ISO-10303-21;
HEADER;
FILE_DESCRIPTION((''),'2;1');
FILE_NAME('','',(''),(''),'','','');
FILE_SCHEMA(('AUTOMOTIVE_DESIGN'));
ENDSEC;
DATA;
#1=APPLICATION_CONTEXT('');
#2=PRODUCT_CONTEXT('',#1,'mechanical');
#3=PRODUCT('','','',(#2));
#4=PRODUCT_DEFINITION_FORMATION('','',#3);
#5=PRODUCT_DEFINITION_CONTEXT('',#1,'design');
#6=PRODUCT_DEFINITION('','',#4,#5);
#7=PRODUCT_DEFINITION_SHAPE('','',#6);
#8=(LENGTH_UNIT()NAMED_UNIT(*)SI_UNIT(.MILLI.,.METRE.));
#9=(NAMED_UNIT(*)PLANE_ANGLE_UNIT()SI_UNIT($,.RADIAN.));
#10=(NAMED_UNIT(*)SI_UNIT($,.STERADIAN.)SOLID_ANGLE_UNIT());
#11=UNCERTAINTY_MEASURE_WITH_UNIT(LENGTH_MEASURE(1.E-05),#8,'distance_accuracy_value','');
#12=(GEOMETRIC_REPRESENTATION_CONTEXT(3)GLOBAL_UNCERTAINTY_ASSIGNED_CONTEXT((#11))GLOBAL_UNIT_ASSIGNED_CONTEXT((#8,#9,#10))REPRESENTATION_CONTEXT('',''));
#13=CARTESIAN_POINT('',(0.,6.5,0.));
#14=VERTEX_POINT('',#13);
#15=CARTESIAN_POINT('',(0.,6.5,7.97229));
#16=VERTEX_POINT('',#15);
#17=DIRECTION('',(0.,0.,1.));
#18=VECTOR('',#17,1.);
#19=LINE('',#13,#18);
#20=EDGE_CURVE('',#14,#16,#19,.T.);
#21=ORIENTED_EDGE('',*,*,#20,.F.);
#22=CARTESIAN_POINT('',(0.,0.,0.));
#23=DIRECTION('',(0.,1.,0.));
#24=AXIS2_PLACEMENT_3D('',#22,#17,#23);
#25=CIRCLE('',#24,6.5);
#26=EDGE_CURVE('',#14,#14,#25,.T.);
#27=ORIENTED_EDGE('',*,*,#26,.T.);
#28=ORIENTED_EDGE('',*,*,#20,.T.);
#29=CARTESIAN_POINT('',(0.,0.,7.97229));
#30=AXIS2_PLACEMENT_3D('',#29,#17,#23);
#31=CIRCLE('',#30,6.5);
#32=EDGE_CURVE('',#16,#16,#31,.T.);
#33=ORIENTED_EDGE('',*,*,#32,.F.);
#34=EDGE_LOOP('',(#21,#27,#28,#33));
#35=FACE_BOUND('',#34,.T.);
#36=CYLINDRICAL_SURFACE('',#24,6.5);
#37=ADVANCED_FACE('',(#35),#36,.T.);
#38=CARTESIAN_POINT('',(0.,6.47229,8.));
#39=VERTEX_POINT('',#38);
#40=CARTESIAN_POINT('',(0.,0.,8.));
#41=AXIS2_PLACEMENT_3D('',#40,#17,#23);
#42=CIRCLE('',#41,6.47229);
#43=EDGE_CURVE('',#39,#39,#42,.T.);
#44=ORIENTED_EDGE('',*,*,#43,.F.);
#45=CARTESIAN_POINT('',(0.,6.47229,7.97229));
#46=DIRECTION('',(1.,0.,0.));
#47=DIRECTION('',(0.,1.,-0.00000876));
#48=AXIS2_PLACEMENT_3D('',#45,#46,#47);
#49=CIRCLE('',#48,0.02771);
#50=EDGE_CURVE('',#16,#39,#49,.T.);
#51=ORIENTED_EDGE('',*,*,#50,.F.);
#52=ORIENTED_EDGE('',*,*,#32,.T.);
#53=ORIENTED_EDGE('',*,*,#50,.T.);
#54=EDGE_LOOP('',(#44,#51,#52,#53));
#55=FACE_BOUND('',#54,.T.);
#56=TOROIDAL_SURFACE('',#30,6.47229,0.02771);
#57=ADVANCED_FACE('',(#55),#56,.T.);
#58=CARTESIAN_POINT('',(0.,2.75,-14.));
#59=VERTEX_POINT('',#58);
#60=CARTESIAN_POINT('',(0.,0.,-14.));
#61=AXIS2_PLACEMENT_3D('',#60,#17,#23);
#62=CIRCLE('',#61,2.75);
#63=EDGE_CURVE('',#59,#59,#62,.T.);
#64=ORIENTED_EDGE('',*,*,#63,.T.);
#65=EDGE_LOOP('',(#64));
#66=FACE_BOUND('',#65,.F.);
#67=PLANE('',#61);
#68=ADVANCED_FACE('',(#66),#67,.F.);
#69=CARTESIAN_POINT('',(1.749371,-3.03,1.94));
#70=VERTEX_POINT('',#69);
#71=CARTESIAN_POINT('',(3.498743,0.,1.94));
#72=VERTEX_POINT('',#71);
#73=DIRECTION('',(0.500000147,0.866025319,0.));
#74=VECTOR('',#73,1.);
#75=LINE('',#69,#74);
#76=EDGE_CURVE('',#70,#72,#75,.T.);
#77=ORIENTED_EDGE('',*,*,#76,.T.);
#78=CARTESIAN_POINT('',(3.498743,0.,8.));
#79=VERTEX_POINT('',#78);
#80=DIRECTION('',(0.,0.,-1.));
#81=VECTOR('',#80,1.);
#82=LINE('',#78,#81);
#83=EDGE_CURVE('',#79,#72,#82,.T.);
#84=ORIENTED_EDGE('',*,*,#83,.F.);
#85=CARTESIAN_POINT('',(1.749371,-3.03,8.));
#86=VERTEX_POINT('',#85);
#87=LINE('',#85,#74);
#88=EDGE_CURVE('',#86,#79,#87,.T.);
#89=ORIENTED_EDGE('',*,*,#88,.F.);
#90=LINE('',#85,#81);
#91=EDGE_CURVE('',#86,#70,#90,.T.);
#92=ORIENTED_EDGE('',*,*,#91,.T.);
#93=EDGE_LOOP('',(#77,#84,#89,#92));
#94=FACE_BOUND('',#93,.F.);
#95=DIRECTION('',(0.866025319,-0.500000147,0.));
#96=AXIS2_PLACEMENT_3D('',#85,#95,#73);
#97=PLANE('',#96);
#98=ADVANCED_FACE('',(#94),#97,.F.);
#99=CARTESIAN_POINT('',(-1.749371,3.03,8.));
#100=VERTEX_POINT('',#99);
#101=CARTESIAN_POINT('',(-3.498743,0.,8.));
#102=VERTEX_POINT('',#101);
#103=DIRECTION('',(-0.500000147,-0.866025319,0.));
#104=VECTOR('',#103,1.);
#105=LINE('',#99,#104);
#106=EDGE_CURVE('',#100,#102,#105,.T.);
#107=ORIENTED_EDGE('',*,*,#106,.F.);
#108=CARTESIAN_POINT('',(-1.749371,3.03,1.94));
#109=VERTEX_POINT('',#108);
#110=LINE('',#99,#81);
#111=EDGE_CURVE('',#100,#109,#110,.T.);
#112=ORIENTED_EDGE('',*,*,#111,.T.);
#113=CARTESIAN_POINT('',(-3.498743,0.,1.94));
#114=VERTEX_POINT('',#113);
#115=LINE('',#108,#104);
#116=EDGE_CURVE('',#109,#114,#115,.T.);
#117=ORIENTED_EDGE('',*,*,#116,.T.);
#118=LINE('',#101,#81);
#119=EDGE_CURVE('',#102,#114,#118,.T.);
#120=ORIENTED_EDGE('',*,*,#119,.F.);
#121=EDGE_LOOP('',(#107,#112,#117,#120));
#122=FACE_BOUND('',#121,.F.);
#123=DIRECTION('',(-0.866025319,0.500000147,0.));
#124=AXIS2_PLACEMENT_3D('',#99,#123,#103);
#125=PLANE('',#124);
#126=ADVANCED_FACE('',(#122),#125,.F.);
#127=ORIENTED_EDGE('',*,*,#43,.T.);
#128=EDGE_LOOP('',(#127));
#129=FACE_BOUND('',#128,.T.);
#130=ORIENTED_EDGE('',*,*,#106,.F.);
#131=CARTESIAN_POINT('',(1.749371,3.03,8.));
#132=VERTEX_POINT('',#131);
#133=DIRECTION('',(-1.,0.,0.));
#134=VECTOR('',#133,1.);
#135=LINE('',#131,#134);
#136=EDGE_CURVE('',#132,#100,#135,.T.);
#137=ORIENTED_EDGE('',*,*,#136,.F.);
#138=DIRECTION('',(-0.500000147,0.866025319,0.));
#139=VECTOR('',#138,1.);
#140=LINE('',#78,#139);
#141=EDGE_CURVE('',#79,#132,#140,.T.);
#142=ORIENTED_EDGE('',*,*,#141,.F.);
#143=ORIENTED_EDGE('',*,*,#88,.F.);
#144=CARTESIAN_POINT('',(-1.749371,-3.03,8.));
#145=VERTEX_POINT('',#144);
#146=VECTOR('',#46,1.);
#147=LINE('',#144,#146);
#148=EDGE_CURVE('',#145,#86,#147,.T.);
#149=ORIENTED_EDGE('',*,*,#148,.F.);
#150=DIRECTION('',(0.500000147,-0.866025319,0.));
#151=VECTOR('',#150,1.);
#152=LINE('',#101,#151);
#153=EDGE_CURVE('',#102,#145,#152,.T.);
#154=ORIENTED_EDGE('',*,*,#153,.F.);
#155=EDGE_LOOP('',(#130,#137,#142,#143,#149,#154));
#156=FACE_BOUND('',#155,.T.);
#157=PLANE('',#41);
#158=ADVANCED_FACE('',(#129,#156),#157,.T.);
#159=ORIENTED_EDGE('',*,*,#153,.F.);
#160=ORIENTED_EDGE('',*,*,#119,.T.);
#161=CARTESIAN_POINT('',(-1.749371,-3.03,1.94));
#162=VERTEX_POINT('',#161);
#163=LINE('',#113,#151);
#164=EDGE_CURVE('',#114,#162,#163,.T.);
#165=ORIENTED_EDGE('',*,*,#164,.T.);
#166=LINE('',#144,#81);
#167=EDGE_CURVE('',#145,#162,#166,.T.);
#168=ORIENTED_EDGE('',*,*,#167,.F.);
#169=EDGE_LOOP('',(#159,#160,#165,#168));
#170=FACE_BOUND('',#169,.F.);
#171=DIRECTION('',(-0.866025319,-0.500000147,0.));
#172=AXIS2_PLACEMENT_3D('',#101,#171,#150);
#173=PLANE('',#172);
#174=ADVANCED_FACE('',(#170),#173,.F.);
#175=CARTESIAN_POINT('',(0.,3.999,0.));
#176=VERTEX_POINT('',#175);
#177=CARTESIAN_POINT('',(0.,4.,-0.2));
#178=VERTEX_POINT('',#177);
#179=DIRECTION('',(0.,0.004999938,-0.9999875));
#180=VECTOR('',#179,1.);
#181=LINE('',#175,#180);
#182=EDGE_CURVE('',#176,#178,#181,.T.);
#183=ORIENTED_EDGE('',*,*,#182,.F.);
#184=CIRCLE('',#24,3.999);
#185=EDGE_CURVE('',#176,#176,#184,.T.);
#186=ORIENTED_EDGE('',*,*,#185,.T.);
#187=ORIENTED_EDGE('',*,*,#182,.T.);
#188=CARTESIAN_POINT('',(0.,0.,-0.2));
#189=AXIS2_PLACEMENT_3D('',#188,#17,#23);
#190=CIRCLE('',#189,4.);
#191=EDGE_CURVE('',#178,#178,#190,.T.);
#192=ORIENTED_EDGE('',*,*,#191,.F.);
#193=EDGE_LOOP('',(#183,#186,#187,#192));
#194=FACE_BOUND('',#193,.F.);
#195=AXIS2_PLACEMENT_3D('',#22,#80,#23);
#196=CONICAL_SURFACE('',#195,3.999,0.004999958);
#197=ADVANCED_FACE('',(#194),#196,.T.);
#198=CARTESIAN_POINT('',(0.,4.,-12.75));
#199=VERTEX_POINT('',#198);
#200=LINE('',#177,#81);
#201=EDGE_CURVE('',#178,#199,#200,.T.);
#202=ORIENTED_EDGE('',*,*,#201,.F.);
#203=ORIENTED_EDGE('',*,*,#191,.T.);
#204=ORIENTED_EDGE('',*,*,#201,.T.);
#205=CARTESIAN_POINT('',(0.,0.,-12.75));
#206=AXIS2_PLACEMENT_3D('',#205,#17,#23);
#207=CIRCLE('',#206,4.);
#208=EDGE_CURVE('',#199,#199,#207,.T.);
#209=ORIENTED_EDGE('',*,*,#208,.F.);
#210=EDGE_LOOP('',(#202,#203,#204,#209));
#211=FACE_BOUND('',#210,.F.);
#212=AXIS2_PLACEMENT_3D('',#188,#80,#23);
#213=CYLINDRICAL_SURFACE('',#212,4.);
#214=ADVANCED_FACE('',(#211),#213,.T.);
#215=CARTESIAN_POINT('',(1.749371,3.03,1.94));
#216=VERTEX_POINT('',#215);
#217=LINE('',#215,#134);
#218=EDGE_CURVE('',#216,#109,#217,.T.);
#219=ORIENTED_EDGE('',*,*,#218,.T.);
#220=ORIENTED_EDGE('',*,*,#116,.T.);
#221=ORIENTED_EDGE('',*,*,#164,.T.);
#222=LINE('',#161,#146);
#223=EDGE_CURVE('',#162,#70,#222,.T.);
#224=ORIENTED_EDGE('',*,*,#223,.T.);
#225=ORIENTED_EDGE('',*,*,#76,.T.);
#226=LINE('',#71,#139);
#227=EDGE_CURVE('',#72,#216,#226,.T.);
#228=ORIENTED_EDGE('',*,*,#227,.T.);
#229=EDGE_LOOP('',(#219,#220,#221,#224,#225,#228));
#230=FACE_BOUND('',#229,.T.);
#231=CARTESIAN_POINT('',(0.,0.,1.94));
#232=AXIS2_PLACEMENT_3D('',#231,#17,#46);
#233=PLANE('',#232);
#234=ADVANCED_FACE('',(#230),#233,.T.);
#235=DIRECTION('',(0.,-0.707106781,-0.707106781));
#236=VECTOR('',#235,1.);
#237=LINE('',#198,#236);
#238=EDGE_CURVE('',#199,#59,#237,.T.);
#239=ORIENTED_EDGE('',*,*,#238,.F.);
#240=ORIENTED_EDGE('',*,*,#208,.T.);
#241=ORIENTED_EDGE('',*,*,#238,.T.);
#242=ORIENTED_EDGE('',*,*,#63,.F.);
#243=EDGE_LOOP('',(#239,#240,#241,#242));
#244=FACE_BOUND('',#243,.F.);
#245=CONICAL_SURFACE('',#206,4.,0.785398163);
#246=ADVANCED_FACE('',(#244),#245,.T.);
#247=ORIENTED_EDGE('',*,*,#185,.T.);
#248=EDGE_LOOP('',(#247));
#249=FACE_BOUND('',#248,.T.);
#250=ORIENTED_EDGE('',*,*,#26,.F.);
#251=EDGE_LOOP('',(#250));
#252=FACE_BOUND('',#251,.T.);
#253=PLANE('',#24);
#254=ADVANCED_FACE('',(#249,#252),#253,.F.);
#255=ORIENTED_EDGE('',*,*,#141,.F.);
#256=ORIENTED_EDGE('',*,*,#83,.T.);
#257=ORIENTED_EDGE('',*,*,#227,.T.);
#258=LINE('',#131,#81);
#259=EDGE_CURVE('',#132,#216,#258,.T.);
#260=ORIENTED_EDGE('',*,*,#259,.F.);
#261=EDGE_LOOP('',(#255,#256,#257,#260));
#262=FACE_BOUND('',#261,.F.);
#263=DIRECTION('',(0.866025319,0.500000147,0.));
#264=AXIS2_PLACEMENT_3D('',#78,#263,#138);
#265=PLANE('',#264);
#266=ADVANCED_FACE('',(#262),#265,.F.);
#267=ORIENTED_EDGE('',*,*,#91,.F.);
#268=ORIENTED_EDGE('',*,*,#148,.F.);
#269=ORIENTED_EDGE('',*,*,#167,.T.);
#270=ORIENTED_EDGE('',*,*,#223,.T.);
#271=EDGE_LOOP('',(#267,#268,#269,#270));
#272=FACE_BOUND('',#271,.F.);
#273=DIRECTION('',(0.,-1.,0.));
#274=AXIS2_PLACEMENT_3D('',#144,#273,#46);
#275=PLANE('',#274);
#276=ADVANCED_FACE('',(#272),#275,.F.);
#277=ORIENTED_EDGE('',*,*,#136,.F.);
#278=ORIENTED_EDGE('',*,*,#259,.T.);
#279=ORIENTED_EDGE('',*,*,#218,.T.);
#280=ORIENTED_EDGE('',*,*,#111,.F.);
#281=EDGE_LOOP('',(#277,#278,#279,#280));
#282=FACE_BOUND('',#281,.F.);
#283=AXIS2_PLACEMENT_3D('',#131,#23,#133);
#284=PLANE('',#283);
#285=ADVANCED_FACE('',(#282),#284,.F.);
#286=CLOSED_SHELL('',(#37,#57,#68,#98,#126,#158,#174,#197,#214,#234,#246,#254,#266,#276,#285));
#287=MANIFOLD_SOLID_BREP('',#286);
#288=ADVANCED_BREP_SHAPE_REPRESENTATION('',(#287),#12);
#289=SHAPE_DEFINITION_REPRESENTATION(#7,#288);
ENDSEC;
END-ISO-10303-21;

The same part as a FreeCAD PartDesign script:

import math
import FreeCAD as App
import Part
import Sketcher
Q = App.Units.Quantity


def add_polygon(sketch, points):
    """Adds a closed chain of lines whose ends are joined by coincident constraints."""
    first, n = sketch.GeometryCount, len(points)
    for a, b in zip(points, points[1:] + points[:1]):
        sketch.addGeometry(Part.LineSegment(App.Vector(*a, 0), App.Vector(*b, 0)), False)
    for i in range(n):
        sketch.addConstraint(Sketcher.Constraint("Coincident", first + i, 2, first + (i + 1) % n, 1))

doc = App.newDocument("Part")
params = doc.addObject("Spreadsheet::Sheet", "Params")
for row, (alias, value) in enumerate([
    ("sketch1_height", "22 mm"),
    ("sketch1_width", "2.75 mm"),
    ("sketch1_height2", "12.55 mm"),
    ("revolution_angle", "360 deg"),
    ("pocket1_length", "6.06 mm"),
], start=1):
    params.set(f"A{row}", alias)
    params.set(f"B{row}", "=" + value)
    params.setAlias(f"B{row}", alias)

body = doc.addObject("PartDesign::Body", "Body")

sketch1 = body.newObject("Sketcher::SketchObject", "Sketch")
sketch1.AttachmentSupport = (doc.getObject("YZ_Plane"), [""])
sketch1.MapMode = "FlatFace"
sketch1.addGeometry([
    Part.LineSegment(App.Vector(3.999, 0, 0), App.Vector(6.5, 0, 0)),
    Part.LineSegment(App.Vector(6.5, 0, 0), App.Vector(6.5, 7.972, 0)),
    Part.ArcOfCircle(Part.Circle(App.Vector(6.472, 7.972, 0), App.Vector(0, 0, 1), 0.028), math.radians(0), math.radians(90)),
    Part.LineSegment(App.Vector(6.472, 8, 0), App.Vector(0, 8, 0)),
    Part.LineSegment(App.Vector(0, 8, 0), App.Vector(0, -14, 0)),
    Part.LineSegment(App.Vector(0, -14, 0), App.Vector(2.75, -14, 0)),
    Part.LineSegment(App.Vector(2.75, -14, 0), App.Vector(4, -12.75, 0)),
    Part.LineSegment(App.Vector(4, -12.75, 0), App.Vector(4, -0.2, 0)),
    Part.LineSegment(App.Vector(4, -0.2, 0), App.Vector(3.999, 0, 0)),
], False)
sketch1.addConstraint([
    Sketcher.Constraint("Coincident", 0, 2, 1, 1),
    Sketcher.Constraint("Coincident", 1, 2, 2, 1),
    Sketcher.Constraint("Coincident", 2, 2, 3, 1),
    Sketcher.Constraint("Coincident", 3, 2, 4, 1),
    Sketcher.Constraint("Coincident", 4, 2, 5, 1),
    Sketcher.Constraint("Coincident", 5, 2, 6, 1),
    Sketcher.Constraint("Coincident", 6, 2, 7, 1),
    Sketcher.Constraint("Coincident", 7, 2, 8, 1),
    Sketcher.Constraint("Coincident", 8, 2, 0, 1),
    Sketcher.Constraint("Horizontal", 0),
    Sketcher.Constraint("Vertical", 1),
    Sketcher.Constraint("Horizontal", 3),
    Sketcher.Constraint("Vertical", 4),
    Sketcher.Constraint("Horizontal", 5),
    Sketcher.Constraint("Vertical", 7),
    Sketcher.Constraint("PointOnObject", 0, 2, -1),
    Sketcher.Constraint("PointOnObject", 3, 2, -2),
    Sketcher.Constraint("Horizontal", 2, 3, 1, 2),
    Sketcher.Constraint("DistanceY", 4, 2, 4, 1, Q("22 mm")),
    Sketcher.Constraint("Angle", 6, Q("45 deg")),
    Sketcher.Constraint("DistanceY", -1, 1, 2, 2, Q("8 mm")),
    Sketcher.Constraint("DistanceX", -1, 1, 6, 2, Q("4 mm")),
    Sketcher.Constraint("DistanceX", 5, 1, 5, 2, Q("2.75 mm")),
    Sketcher.Constraint("DistanceY", 7, 1, 7, 2, Q("12.55 mm")),
    Sketcher.Constraint("DistanceX", -1, 1, 0, 2, Q("6.5 mm")),
    Sketcher.Constraint("DistanceX", 0, 1, 0, 2, Q("2.501 mm")),
    Sketcher.Constraint("Radius", 2, Q("0.02771 mm")),
    Sketcher.Constraint("DistanceX", 3, 2, 3, 1, Q("6.47229 mm")),
])
sketch1.setExpression("Constraints[18]", "Params.sketch1_height")
sketch1.setExpression("Constraints[22]", "Params.sketch1_width")
sketch1.setExpression("Constraints[23]", "Params.sketch1_height2")
revolution = body.newObject("PartDesign::Revolution", "Revolution")
revolution.Profile = sketch1
revolution.ReferenceAxis = (sketch1, ["V_Axis"])
revolution.setExpression("Angle", "Params.revolution_angle")

sketch2 = body.newObject("Sketcher::SketchObject", "Sketch001")
sketch2.AttachmentSupport = (doc.getObject("XY_Plane"), [""])
sketch2.MapMode = "FlatFace"
sketch2.AttachmentOffset = App.Placement(App.Vector(0, 0, 8), App.Rotation())
add_polygon(sketch2, [(3.5, 0), (1.7, 3), (-1.7, 3), (-3.5, 0), (-1.7, -3), (1.7, -3)])
sketch2.addConstraint([
    Sketcher.Constraint("Horizontal", 1),
    Sketcher.Constraint("Horizontal", 4),
    Sketcher.Constraint("Symmetric", 0, 2, 3, 2, -1, 1),
    Sketcher.Constraint("Symmetric", 2, 2, 5, 2, -1, 1),
    Sketcher.Constraint("PointOnObject", 2, 2, -1),
    Sketcher.Constraint("Parallel", 2, 5),
    Sketcher.Constraint("Vertical", 1, 2, 3, 2),
    Sketcher.Constraint("Angle", 0, Q("120.00001 deg")),
    Sketcher.Constraint("DistanceY", -1, 1, 0, 2, Q("3.03 mm")),
    Sketcher.Constraint("DistanceX", 1, 2, 1, 1, Q("3.498742 mm")),
])
pocket1 = body.newObject("PartDesign::Pocket", "Pocket")
pocket1.Profile = sketch2
pocket1.setExpression("Length", "Params.pocket1_length")

doc.recompute()
